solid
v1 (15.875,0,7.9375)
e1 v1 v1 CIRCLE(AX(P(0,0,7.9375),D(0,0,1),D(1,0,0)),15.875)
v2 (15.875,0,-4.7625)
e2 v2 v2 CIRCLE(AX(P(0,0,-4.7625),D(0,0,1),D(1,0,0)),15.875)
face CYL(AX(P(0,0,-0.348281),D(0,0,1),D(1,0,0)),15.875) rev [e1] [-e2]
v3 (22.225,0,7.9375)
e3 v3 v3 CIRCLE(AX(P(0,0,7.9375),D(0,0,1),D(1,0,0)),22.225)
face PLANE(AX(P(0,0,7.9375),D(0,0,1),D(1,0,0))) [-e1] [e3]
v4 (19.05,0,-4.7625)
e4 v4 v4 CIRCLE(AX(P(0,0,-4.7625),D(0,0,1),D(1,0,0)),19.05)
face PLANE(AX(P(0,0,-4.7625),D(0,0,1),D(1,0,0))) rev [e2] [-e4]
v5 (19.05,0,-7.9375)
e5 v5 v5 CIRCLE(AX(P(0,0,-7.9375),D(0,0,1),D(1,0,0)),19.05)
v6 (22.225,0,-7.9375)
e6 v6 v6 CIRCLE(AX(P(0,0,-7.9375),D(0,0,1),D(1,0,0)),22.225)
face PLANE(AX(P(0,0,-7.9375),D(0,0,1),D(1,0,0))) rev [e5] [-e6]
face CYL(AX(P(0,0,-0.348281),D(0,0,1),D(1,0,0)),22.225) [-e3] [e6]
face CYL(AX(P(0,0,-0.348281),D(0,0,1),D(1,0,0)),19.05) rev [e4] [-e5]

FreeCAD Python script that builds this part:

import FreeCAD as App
import Part
import Sketcher

V = App.Vector
Q = App.Units.Quantity

doc = App.newDocument("Part")
body = doc.addObject("PartDesign::Body", "Body")

sketch1 = body.newObject("Sketcher::SketchObject", "Sketch")
sketch1.AttachmentSupport = (doc.getObject("XZ_Plane"), [""])
sketch1.MapMode = "FlatFace"
sketch1.addGeometry([
    Part.LineSegment(V(15.9, -4.8, 0), V(15.9, 7.9, 0)),
    Part.LineSegment(V(15.9, 7.9, 0), V(22.2, 7.9, 0)),
    Part.LineSegment(V(22.2, 7.9, 0), V(22.2, -7.9, 0)),
    Part.LineSegment(V(22.2, -7.9, 0), V(19.1, -7.9, 0)),
    Part.LineSegment(V(19.1, -7.9, 0), V(19.1, -4.8, 0)),
    Part.LineSegment(V(19.1, -4.8, 0), V(15.9, -4.8, 0)),
], False)
sketch1.addConstraint([
    Sketcher.Constraint("Coincident", 0, 2, 1, 1),
    Sketcher.Constraint("Coincident", 1, 2, 2, 1),
    Sketcher.Constraint("Coincident", 2, 2, 3, 1),
    Sketcher.Constraint("Coincident", 3, 2, 4, 1),
    Sketcher.Constraint("Coincident", 4, 2, 5, 1),
    Sketcher.Constraint("Coincident", 5, 2, 0, 1),
    Sketcher.Constraint("Vertical", 0),
    Sketcher.Constraint("Horizontal", 1),
    Sketcher.Constraint("Vertical", 2),
    Sketcher.Constraint("Horizontal", 3),
    Sketcher.Constraint("Vertical", 4),
    Sketcher.Constraint("Horizontal", 5),
    Sketcher.Constraint("Equal", 3, 5),
    Sketcher.Constraint("Equal", 5, 4),
    Sketcher.Constraint("DistanceY", 0, 1, 0, 2, Q("0.5 in")),
    Sketcher.Constraint("DistanceX", 1, 1, 1, 2, Q("0.25 in")),
    Sketcher.Constraint("DistanceX", -1, 1, 3, 2, Q("0.75 in")),
    Sketcher.Constraint("DistanceY", -1, 1, 0, 2, Q("0.3125 in")),
])
revolution = body.newObject("PartDesign::Revolution", "Revolution")
revolution.Profile = sketch1
revolution.ReferenceAxis = (sketch1, ["V_Axis"])
revolution.Angle = 360

doc.recompute()
